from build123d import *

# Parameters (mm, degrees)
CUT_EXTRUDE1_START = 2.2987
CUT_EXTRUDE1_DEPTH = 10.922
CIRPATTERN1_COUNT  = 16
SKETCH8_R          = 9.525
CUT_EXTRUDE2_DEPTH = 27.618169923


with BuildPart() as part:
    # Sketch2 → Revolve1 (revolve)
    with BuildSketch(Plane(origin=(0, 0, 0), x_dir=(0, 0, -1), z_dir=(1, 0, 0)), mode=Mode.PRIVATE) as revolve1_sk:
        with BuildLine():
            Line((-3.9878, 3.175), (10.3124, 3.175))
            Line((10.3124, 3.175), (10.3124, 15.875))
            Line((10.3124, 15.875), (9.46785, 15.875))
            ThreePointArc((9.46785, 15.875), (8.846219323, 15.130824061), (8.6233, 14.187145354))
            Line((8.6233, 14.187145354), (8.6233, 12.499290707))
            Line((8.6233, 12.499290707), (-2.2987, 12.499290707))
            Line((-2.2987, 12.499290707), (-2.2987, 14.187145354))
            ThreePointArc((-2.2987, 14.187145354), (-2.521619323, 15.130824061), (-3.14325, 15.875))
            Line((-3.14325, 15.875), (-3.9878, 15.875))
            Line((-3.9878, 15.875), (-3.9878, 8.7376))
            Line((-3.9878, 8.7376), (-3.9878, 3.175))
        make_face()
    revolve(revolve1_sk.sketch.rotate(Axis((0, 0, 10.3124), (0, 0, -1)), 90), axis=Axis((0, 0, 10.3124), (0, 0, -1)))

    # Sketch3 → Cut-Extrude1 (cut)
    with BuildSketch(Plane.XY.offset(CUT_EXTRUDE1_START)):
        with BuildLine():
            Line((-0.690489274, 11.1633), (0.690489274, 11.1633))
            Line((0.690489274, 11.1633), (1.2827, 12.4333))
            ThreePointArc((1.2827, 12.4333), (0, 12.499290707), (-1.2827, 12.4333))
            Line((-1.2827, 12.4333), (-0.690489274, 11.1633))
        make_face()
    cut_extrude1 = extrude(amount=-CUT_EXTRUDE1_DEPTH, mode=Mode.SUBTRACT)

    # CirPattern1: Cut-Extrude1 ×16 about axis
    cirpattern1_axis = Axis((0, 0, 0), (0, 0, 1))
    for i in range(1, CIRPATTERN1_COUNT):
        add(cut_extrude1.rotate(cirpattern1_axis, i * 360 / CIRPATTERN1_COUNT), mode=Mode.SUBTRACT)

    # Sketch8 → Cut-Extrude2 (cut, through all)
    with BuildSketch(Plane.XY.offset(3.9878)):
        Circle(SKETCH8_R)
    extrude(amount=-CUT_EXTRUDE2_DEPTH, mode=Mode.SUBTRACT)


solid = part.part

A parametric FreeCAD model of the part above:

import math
import FreeCAD as App
import Part
import Sketcher
Q = App.Units.Quantity

doc = App.newDocument("Part")
params = doc.addObject("Spreadsheet::Sheet", "Params")
for row, (alias, value) in enumerate([
    ("sketch1_width", "0.5 in"),
    ("sketch1_height", "0.43 in"),
    ("sketch1_height2", "0.563 in"),
    ("revolution_angle", "360 deg"),
    ("pocket1_length", "0.43 in"),
    ("sketch3_diameter", "0.75 in"),
], start=1):
    params.set(f"A{row}", alias)
    params.set(f"B{row}", "=" + value)
    params.setAlias(f"B{row}", alias)

body = doc.addObject("PartDesign::Body", "Body")

# Sketch on YZ plane
sketch1 = body.newObject("Sketcher::SketchObject", "Sketch")
sketch1.AttachmentSupport = (doc.getObject("YZ_Plane"), [""])
sketch1.MapMode = "FlatFace"
sketch1.addGeometry([
    Part.LineSegment(App.Vector(3.2, 4, 0), App.Vector(3.2, -10.3, 0)),  # 0
    Part.LineSegment(App.Vector(3.2, -10.3, 0), App.Vector(15.9, -10.3, 0)),  # 1
    Part.LineSegment(App.Vector(15.9, -10.3, 0), App.Vector(15.9, -9.5, 0)),  # 2
    Part.ArcOfCircle(Part.Circle(App.Vector(14.2, -10.7, 0), App.Vector(0, 0, 1), 2.1), math.radians(37), math.radians(90)),  # 3
    Part.LineSegment(App.Vector(14.2, -8.6, 0), App.Vector(12.5, -8.6, 0)),  # 4
    Part.LineSegment(App.Vector(12.5, -8.6, 0), App.Vector(12.5, 2.3, 0)),  # 5
    Part.LineSegment(App.Vector(12.5, 2.3, 0), App.Vector(14.2, 2.3, 0)),  # 6
    Part.ArcOfCircle(Part.Circle(App.Vector(14.2, 4.4, 0), App.Vector(0, 0, 1), 2.1), math.radians(-90), math.radians(-37)),  # 7
    Part.LineSegment(App.Vector(15.9, 3.1, 0), App.Vector(15.9, 4, 0)),  # 8
    Part.LineSegment(App.Vector(15.9, 4, 0), App.Vector(3.2, 4, 0)),  # 9
], False)
sketch1.addConstraint([
    Sketcher.Constraint("Coincident", 0, 2, 1, 1),
    Sketcher.Constraint("Coincident", 1, 2, 2, 1),
    Sketcher.Constraint("Coincident", 2, 2, 3, 1),
    Sketcher.Constraint("Tangent", 3, 2, 4, 1),
    Sketcher.Constraint("Coincident", 4, 2, 5, 1),
    Sketcher.Constraint("Coincident", 5, 2, 6, 1),
    Sketcher.Constraint("Tangent", 6, 2, 7, 1),
    Sketcher.Constraint("Coincident", 7, 2, 8, 1),
    Sketcher.Constraint("Coincident", 8, 2, 9, 1),
    Sketcher.Constraint("Coincident", 9, 2, 0, 1),
    Sketcher.Constraint("Vertical", 0),
    Sketcher.Constraint("Horizontal", 1),
    Sketcher.Constraint("Vertical", 2),
    Sketcher.Constraint("Horizontal", 4),
    Sketcher.Constraint("Vertical", 5),
    Sketcher.Constraint("Horizontal", 6),
    Sketcher.Constraint("Vertical", 8),
    Sketcher.Constraint("Horizontal", 9),
    Sketcher.Constraint("Equal", 3, 7),
    Sketcher.Constraint("Vertical", 3, 3, 7, 3),
    Sketcher.Constraint("Vertical", 2, 2, 7, 2),
    Sketcher.Constraint("Equal", 2, 8),
    Sketcher.Constraint("DistanceX", 1, 1, 1, 2, Q("0.5 in")),
    Sketcher.Constraint("DistanceY", 5, 1, 5, 2, Q("0.43 in")),
    Sketcher.Constraint("DistanceY", 0, 2, 0, 1, Q("0.563 in")),
    Sketcher.Constraint("DistanceX", -1, 1, 0, 2, Q("0.125 in")),
    Sketcher.Constraint("DistanceY", 0, 2, -1, 1, Q("0.406 in")),
    Sketcher.Constraint("Radius", 3, 2.108885),
    Sketcher.Constraint("DistanceY", 2, 1, 2, 2, 0.84455),
    Sketcher.Constraint("DistanceX", 4, 2, 4, 1, 1.687855),
])
sketch1.setExpression("Constraints[22]", "Params.sketch1_width")
sketch1.setExpression("Constraints[23]", "Params.sketch1_height")
sketch1.setExpression("Constraints[24]", "Params.sketch1_height2")
revolution = body.newObject("PartDesign::Revolution", "Revolution")
revolution.Profile = sketch1
revolution.ReferenceAxis = (sketch1, ["V_Axis"])
revolution.setExpression("Angle", "Params.revolution_angle")

# Sketch on XY plane
sketch2 = body.newObject("Sketcher::SketchObject", "Sketch001")
sketch2.AttachmentSupport = (doc.getObject("XY_Plane"), [""])
sketch2.MapMode = "FlatFace"
sketch2.AttachmentOffset = App.Placement(App.Vector(0, 0, 0.0905 * 25.4), App.Rotation())
sketch2.addGeometry([
    Part.LineSegment(App.Vector(-0.7, 11.2, 0), App.Vector(0.7, 11.2, 0)),
    Part.LineSegment(App.Vector(0.7, 11.2, 0), App.Vector(1.3, 12.4, 0)),
    Part.ArcOfCircle(Part.Circle(App.Vector(0, 0, 0), App.Vector(0, 0, 1), 12.5), math.radians(84.11), math.radians(95.89)),
    Part.LineSegment(App.Vector(-1.3, 12.4, 0), App.Vector(-0.7, 11.2, 0)),
], False)
sketch2.addConstraint([
    Sketcher.Constraint("Coincident", 0, 2, 1, 1),
    Sketcher.Constraint("Coincident", 1, 2, 2, 1),
    Sketcher.Constraint("Coincident", 2, 2, 3, 1),
    Sketcher.Constraint("Coincident", 3, 2, 0, 1),
    Sketcher.Constraint("Horizontal", 0),
    Sketcher.Constraint("Coincident", 2, 3, -1, 1),
    Sketcher.Constraint("Horizontal", 1, 2, 2, 2),
    Sketcher.Constraint("Equal", 1, 3),
    Sketcher.Constraint("Angle", 1, Q("65 deg")),
    Sketcher.Constraint("DistanceY", 0, 2, 1, 2, Q("0.05 in")),
    Sketcher.Constraint("Radius", 2, 12.499291),
    Sketcher.Constraint("DistanceX", 2, 2, 1, 2, Q("0.101 in")),
])
pocket1 = body.newObject("PartDesign::Pocket", "Pocket")
pocket1.Profile = sketch2
pocket1.setExpression("Length", "Params.pocket1_length")
doc.recompute()

polarpattern = body.newObject("PartDesign::PolarPattern", "PolarPattern")
polarpattern.Originals = [pocket1]
polarpattern.Axis = (doc.getObject("Z_Axis"), [""])
polarpattern.Angle = 360
polarpattern.Occurrences = 16
body.Tip = polarpattern

# Sketch on XY plane
sketch3 = body.newObject("Sketcher::SketchObject", "Sketch002")
sketch3.AttachmentSupport = (doc.getObject("XY_Plane"), [""])
sketch3.MapMode = "FlatFace"
sketch3.AttachmentOffset = App.Placement(App.Vector(0, 0, 0.157 * 25.4), App.Rotation())
sketch3.addGeometry(Part.Circle(App.Vector(0, 0, 0), App.Vector(0, 0, 1), 10), False)
sketch3.addConstraint([
    Sketcher.Constraint("Coincident", 0, 3, -1, 1),
    Sketcher.Constraint("Diameter", 0, Q("0.75 in")),
])
sketch3.setExpression("Constraints[1]", "Params.sketch3_diameter")
pocket2 = body.newObject("PartDesign::Pocket", "Pocket001")
pocket2.Profile = sketch3
pocket2.Type = "ThroughAll"

doc.recompute()
